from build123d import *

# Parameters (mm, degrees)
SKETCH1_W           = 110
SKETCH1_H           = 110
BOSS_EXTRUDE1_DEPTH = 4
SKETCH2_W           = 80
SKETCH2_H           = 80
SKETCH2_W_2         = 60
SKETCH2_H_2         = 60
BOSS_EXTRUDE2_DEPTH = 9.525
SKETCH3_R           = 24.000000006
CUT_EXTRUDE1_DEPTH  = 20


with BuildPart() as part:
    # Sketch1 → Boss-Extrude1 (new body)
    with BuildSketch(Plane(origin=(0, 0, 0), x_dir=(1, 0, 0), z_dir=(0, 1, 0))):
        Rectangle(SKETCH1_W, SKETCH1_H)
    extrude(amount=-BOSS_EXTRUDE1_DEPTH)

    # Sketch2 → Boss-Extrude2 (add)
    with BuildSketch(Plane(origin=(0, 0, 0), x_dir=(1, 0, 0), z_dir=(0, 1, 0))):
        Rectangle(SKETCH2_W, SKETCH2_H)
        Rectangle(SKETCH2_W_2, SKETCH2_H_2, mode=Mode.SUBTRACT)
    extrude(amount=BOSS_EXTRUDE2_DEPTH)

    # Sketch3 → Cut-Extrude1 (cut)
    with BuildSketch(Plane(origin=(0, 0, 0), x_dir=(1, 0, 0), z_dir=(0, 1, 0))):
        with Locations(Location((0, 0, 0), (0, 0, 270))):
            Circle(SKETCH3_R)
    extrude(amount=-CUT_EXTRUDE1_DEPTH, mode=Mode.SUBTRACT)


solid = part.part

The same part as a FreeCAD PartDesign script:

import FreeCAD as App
import Part
import Sketcher

V = App.Vector


def add_polygon(sketch, points):
    """Adds a closed chain of lines whose ends are joined by coincident constraints."""
    first, n = sketch.GeometryCount, len(points)
    for a, b in zip(points, points[1:] + points[:1]):
        sketch.addGeometry(Part.LineSegment(App.Vector(*a, 0), App.Vector(*b, 0)), False)
    for i in range(n):
        sketch.addConstraint(Sketcher.Constraint("Coincident", first + i, 2, first + (i + 1) % n, 1))

doc = App.newDocument("Part")
params = doc.addObject("Spreadsheet::Sheet", "Params")
for row, (alias, value) in enumerate([
    ("sketch1_width", "110 mm"),
    ("pad1_length", "4 mm"),
    ("sketch2_width", "80 mm"),
    ("sketch2_width2", "60 mm"),
    ("pad2_length", "9.525 mm"),
    ("sketch3_diameter", "48 mm"),
    ("pocket1_length", "20 mm"),
], start=1):
    params.set(f"A{row}", alias)
    params.set(f"B{row}", "=" + value)
    params.setAlias(f"B{row}", alias)

body = doc.addObject("PartDesign::Body", "Body")

sketch1 = body.newObject("Sketcher::SketchObject", "Sketch")
sketch1.AttachmentSupport = (doc.getObject("XZ_Plane"), [""])
sketch1.MapMode = "FlatFace"
add_polygon(sketch1, [(-55, -55), (-55, 55), (55, 55), (55, -55)])
sketch1.addConstraint([
    Sketcher.Constraint("Vertical", 0),
    Sketcher.Constraint("Horizontal", 1),
    Sketcher.Constraint("Vertical", 2),
    Sketcher.Constraint("Horizontal", 3),
    Sketcher.Constraint("Symmetric", 0, 2, 2, 2, -1, 1),
    Sketcher.Constraint("Equal", 3, 0),
    Sketcher.Constraint("DistanceX", 1, 1, 1, 2, 110.0),
])
sketch1.setExpression("Constraints[10]", "Params.sketch1_width")
pad1 = body.newObject("PartDesign::Pad", "Pad")
pad1.Profile = sketch1
pad1.setExpression("Length", "Params.pad1_length")

sketch2 = body.newObject("Sketcher::SketchObject", "Sketch001")
sketch2.AttachmentSupport = (doc.getObject("XZ_Plane"), [""])
sketch2.MapMode = "FlatFace"
add_polygon(sketch2, [(-40, -40), (-40, 40), (40, 40), (40, -40)])
add_polygon(sketch2, [(30, 30), (-30, 30), (-30, -30), (30, -30)])
sketch2.addConstraint([
    Sketcher.Constraint("Vertical", 0),
    Sketcher.Constraint("Horizontal", 1),
    Sketcher.Constraint("Vertical", 2),
    Sketcher.Constraint("Horizontal", 3),
    Sketcher.Constraint("Horizontal", 4),
    Sketcher.Constraint("Vertical", 5),
    Sketcher.Constraint("Horizontal", 6),
    Sketcher.Constraint("Vertical", 7),
    Sketcher.Constraint("Symmetric", 0, 2, 2, 2, -1, 1),
    Sketcher.Constraint("Symmetric", 4, 2, 6, 2, -1, 1),
    Sketcher.Constraint("Equal", 3, 0),
    Sketcher.Constraint("Equal", 6, 5),
    Sketcher.Constraint("DistanceX", 1, 1, 1, 2, 80.0),
    Sketcher.Constraint("DistanceX", 4, 2, 4, 1, 60.0),
])
sketch2.setExpression("Constraints[20]", "Params.sketch2_width")
sketch2.setExpression("Constraints[21]", "Params.sketch2_width2")
pad2 = body.newObject("PartDesign::Pad", "Pad001")
pad2.Profile = sketch2
pad2.setExpression("Length", "Params.pad2_length")
pad2.Reversed = True

sketch3 = body.newObject("Sketcher::SketchObject", "Sketch002")
sketch3.AttachmentSupport = (doc.getObject("XZ_Plane"), [""])
sketch3.MapMode = "FlatFace"
sketch3.addGeometry(Part.Circle(V(0, 0, 0), V(0, 0, 1), 24), False)
sketch3.addConstraint([
    Sketcher.Constraint("Coincident", 0, 3, -1, 1),
    Sketcher.Constraint("Diameter", 0, 48.0),
])
sketch3.setExpression("Constraints[1]", "Params.sketch3_diameter")
pocket1 = body.newObject("PartDesign::Pocket", "Pocket")
pocket1.Profile = sketch3
pocket1.setExpression("Length", "Params.pocket1_length")
pocket1.Reversed = True

doc.recompute()
